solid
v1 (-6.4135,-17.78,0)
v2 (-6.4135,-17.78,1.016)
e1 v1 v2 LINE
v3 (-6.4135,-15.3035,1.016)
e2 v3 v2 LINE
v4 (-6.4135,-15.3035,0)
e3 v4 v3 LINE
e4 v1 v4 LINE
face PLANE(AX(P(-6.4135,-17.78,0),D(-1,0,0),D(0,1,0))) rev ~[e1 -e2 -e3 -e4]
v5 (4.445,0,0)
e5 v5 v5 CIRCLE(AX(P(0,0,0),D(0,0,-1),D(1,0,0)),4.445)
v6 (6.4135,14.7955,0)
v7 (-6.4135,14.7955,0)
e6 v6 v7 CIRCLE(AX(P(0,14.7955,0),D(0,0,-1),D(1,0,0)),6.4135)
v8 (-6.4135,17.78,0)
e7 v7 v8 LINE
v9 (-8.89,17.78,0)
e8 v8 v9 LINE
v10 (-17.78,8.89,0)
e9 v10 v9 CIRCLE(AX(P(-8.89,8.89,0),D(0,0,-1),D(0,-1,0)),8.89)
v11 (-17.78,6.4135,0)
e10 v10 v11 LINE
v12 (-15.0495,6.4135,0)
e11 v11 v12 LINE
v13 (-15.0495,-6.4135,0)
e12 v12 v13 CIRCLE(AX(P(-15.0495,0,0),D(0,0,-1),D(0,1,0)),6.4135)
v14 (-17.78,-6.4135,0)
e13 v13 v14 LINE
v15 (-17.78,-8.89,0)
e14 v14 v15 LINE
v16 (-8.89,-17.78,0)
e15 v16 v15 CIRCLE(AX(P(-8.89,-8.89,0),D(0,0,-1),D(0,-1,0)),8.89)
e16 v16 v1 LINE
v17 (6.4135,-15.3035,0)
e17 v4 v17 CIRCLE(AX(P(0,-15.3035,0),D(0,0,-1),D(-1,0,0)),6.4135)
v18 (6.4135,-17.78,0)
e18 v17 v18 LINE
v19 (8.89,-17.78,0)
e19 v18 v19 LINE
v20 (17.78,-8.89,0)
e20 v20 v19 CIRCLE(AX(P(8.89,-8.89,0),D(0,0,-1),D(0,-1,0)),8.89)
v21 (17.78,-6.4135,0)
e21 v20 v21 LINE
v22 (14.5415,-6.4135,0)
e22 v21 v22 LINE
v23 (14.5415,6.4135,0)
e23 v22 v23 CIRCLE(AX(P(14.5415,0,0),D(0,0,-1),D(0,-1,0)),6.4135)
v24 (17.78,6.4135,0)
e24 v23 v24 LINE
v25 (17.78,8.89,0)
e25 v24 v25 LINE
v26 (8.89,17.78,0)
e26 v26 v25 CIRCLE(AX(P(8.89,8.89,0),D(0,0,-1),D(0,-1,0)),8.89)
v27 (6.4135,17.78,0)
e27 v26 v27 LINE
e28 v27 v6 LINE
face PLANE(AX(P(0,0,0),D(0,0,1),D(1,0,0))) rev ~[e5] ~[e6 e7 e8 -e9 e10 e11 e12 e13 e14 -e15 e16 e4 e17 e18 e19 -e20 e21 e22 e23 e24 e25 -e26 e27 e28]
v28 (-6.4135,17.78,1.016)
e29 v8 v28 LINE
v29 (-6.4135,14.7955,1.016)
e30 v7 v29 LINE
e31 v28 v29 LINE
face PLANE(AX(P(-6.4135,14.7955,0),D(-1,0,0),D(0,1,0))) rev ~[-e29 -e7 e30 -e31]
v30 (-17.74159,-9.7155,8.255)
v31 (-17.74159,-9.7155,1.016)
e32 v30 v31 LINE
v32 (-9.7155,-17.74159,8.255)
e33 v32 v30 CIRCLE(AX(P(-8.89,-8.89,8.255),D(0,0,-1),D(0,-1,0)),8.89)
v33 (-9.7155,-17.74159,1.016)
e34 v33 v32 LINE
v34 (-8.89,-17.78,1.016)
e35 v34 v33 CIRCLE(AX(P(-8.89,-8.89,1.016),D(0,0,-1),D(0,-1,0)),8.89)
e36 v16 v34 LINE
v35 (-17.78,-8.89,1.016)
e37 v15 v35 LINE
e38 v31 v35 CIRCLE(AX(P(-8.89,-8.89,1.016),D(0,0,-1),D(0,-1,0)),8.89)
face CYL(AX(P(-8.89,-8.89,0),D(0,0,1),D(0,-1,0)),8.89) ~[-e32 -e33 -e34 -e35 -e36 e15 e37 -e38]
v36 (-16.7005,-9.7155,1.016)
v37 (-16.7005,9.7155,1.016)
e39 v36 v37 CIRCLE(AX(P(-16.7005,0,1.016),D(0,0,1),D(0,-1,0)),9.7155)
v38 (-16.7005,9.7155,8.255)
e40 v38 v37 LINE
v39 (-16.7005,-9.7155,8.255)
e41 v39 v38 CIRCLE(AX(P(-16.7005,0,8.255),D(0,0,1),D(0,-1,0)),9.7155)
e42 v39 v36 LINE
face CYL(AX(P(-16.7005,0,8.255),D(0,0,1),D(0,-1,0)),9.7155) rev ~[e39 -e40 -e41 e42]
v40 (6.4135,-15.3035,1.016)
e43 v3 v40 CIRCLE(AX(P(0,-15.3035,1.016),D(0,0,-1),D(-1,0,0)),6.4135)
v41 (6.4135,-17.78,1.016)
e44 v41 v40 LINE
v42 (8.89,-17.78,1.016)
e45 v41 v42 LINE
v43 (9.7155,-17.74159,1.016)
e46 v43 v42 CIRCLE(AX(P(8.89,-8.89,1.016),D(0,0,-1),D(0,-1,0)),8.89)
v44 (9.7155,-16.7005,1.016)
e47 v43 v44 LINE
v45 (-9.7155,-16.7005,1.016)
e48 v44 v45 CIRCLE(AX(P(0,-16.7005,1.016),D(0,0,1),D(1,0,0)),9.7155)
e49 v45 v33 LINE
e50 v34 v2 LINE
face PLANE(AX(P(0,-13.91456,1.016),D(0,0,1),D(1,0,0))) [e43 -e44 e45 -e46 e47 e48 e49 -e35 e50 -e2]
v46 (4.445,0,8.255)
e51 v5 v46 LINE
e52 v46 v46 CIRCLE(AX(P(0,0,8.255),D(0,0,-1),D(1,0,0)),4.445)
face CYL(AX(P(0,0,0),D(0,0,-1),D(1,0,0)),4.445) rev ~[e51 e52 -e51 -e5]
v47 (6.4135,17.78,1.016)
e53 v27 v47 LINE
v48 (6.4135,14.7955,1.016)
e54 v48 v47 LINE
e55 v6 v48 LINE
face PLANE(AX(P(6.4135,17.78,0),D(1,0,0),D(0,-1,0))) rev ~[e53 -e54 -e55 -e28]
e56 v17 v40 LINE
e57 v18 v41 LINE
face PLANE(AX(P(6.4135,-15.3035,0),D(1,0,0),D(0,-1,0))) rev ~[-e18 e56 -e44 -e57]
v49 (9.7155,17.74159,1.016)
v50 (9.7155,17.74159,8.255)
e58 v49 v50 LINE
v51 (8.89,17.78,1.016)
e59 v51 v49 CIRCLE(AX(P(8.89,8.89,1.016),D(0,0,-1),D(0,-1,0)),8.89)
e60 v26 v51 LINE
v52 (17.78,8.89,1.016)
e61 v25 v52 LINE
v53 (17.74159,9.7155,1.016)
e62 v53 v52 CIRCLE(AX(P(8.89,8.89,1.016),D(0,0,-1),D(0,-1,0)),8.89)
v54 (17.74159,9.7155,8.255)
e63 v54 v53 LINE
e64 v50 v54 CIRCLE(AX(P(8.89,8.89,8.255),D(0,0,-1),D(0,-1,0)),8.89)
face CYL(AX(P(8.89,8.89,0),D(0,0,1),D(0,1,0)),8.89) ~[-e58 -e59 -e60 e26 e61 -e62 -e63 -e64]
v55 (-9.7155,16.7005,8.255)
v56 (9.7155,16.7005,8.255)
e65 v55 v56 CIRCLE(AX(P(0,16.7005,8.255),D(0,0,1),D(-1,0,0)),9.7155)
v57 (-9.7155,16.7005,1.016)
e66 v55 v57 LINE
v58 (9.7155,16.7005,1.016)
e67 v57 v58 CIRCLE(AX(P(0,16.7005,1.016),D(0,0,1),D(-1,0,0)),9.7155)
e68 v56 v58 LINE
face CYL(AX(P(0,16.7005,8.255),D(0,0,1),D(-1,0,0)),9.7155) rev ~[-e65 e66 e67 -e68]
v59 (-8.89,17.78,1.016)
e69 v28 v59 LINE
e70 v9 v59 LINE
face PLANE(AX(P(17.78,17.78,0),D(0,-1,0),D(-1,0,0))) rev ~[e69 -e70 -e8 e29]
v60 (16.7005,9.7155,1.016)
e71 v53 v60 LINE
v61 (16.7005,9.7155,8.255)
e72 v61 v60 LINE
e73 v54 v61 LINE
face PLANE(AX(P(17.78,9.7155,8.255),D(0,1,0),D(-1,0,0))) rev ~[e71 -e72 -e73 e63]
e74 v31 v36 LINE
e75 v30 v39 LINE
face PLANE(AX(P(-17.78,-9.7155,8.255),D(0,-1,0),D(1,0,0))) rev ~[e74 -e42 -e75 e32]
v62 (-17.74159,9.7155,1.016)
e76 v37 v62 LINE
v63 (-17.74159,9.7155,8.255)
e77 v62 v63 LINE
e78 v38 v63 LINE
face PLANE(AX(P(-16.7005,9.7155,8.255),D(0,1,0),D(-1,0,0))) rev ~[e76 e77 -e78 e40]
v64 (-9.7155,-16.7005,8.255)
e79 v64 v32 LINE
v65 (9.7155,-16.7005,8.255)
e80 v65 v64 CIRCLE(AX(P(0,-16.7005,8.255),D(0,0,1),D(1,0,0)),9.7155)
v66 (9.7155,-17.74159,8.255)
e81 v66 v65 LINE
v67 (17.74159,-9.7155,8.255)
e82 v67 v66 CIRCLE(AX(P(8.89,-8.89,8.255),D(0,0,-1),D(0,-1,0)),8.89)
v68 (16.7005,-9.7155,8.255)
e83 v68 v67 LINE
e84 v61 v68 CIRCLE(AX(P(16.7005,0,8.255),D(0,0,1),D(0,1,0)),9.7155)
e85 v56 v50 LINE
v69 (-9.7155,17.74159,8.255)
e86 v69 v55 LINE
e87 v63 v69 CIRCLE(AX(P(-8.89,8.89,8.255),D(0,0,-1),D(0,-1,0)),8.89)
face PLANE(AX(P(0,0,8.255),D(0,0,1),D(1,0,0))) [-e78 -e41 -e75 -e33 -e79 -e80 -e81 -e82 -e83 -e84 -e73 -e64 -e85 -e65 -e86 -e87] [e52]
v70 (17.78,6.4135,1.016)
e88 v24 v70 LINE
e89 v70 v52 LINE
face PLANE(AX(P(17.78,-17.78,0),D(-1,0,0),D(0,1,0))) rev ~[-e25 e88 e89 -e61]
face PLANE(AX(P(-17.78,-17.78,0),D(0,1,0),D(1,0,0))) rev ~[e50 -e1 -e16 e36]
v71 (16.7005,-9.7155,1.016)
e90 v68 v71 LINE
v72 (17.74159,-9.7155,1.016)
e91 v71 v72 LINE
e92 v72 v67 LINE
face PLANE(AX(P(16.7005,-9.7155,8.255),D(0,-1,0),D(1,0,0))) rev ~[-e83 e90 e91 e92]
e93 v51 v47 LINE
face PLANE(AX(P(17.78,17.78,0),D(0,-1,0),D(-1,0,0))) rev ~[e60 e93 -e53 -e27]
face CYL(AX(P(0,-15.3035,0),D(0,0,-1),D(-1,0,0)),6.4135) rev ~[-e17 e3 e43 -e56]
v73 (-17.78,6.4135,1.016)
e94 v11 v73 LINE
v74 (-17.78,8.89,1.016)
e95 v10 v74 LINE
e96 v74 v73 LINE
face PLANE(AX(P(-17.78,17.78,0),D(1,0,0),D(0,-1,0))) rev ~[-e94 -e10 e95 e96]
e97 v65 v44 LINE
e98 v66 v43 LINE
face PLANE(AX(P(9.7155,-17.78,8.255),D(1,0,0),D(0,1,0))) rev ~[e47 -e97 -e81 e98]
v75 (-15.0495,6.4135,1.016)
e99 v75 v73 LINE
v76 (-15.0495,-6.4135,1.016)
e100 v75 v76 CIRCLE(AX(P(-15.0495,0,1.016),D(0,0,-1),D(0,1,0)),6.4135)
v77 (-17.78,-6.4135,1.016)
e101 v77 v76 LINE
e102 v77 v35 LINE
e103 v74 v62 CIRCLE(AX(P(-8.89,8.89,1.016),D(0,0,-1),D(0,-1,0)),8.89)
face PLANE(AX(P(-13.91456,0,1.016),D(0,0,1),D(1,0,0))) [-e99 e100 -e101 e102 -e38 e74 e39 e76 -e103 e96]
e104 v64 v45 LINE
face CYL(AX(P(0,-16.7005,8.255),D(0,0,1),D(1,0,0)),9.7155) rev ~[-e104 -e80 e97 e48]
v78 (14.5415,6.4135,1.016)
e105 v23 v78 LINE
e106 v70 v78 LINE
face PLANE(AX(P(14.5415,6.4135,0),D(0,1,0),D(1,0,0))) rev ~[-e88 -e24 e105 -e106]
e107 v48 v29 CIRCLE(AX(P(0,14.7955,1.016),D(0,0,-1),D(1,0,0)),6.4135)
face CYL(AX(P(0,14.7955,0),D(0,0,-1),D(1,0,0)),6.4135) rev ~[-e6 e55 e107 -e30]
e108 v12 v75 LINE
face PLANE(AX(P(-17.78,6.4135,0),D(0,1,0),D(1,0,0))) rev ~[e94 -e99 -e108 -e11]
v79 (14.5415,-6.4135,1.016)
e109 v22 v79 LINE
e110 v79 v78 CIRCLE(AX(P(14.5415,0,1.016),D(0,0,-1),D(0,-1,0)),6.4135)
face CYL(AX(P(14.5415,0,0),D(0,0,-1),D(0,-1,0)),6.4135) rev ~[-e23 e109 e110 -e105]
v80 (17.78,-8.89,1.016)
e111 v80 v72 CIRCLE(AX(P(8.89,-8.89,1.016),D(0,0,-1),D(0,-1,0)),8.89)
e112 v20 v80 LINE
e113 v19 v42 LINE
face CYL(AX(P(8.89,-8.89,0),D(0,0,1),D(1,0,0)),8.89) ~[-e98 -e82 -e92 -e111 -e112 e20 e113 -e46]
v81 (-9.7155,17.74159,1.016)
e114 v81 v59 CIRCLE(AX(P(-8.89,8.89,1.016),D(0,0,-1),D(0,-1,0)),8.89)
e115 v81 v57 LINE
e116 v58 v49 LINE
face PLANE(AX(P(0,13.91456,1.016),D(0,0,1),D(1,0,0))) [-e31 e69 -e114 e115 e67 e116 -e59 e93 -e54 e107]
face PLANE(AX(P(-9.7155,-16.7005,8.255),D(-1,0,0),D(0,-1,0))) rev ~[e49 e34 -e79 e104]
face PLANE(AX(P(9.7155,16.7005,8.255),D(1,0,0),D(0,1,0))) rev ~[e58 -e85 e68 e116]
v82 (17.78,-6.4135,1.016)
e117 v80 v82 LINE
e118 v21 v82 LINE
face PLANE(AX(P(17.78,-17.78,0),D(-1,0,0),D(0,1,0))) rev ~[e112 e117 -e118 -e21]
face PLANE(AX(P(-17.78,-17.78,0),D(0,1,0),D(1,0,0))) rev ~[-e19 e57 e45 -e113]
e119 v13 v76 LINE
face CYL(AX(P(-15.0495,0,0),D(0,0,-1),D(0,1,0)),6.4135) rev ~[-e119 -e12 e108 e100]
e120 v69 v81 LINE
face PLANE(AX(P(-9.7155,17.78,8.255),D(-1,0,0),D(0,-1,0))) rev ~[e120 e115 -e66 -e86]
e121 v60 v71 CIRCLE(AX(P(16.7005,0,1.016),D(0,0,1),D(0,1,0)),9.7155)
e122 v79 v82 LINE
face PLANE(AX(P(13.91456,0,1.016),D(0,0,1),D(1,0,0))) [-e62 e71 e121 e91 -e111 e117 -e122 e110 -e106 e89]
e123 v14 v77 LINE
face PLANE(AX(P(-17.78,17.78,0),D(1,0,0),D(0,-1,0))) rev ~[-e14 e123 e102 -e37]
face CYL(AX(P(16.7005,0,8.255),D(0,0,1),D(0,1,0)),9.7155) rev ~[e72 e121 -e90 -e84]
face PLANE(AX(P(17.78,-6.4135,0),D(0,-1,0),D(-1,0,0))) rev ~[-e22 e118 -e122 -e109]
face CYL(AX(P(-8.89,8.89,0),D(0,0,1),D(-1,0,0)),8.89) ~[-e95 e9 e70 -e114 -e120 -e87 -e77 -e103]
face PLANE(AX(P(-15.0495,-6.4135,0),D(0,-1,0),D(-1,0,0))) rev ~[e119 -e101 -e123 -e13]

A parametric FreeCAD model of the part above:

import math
import FreeCAD as App
import Part
import Sketcher
Q = App.Units.Quantity


def edges_at(feature, points):
    """Names of the edges that pass closest to the given points."""
    edges = feature.Shape.Edges
    near = lambda p: min(range(len(edges)), key=lambda i: edges[i].distToShape(Part.Vertex(*p))[0])
    return sorted({f"Edge{near(p) + 1}" for p in points})


def add_polygon(sketch, points):
    """Adds a closed chain of lines whose ends are joined by coincident constraints."""
    first, n = sketch.GeometryCount, len(points)
    for a, b in zip(points, points[1:] + points[:1]):
        sketch.addGeometry(Part.LineSegment(App.Vector(*a, 0), App.Vector(*b, 0)), False)
    for i in range(n):
        sketch.addConstraint(Sketcher.Constraint("Coincident", first + i, 2, first + (i + 1) % n, 1))

doc = App.newDocument("Part")
body = doc.addObject("PartDesign::Body", "Body")

# Sketch on XY plane
sketch1 = body.newObject("Sketcher::SketchObject", "Sketch")
sketch1.AttachmentSupport = (doc.getObject("XY_Plane"), [""])
sketch1.MapMode = "FlatFace"
add_polygon(sketch1, [(18, -18), (18, 18), (-18, 18), (-18, -18)])  # lines 0-3
sketch1.addConstraint(Sketcher.Constraint("Vertical", 0))
sketch1.addConstraint(Sketcher.Constraint("Horizontal", 1))
sketch1.addConstraint(Sketcher.Constraint("Vertical", 2))
sketch1.addConstraint(Sketcher.Constraint("Horizontal", 3))
sketch1.addConstraint(Sketcher.Constraint("Symmetric", 0, 2, 2, 2, -1, 1))
sketch1.addConstraint(Sketcher.Constraint("Equal", 3, 0))
sketch1.addConstraint(Sketcher.Constraint("DistanceX", 1, 2, 1, 1, Q("1.4 in")))
pad1 = body.newObject("PartDesign::Pad", "Pad")
pad1.Profile = sketch1
pad1.Length = Q("0.325 in")

# Sketch on XY plane
sketch2 = body.newObject("Sketcher::SketchObject", "Sketch001")
sketch2.AttachmentSupport = (doc.getObject("XY_Plane"), [""])
sketch2.MapMode = "FlatFace"
sketch2.AttachmentOffset = App.Placement(App.Vector(0, 0, 0.325 * 25.4), App.Rotation())
sketch2.addGeometry(Part.LineSegment(App.Vector(-9.7, 17.8, 0), App.Vector(-9.7, 16.7, 0)), False)
sketch2.addGeometry(Part.ArcOfCircle(Part.Circle(App.Vector(0, 16.7, 0), App.Vector(0, 0, 1), 9.7), math.radians(180), math.radians(360)), False)
sketch2.addGeometry(Part.LineSegment(App.Vector(9.7, 16.7, 0), App.Vector(9.7, 17.8, 0)), False)
sketch2.addGeometry(Part.LineSegment(App.Vector(9.7, 17.8, 0), App.Vector(-9.7, 17.8, 0)), False)
sketch2.addGeometry(Part.LineSegment(App.Vector(17.8, 9.7, 0), App.Vector(16.7, 9.7, 0)), False)
sketch2.addGeometry(Part.ArcOfCircle(Part.Circle(App.Vector(16.7, 0, 0), App.Vector(0, 0, 1), 9.7), math.radians(90), math.radians(270)), False)
sketch2.addGeometry(Part.LineSegment(App.Vector(16.7, -9.7, 0), App.Vector(17.8, -9.7, 0)), False)
sketch2.addGeometry(Part.LineSegment(App.Vector(17.8, -9.7, 0), App.Vector(17.8, 9.7, 0)), False)
sketch2.addGeometry(Part.LineSegment(App.Vector(-17.8, -9.7, 0), App.Vector(-16.7, -9.7, 0)), False)
sketch2.addGeometry(Part.ArcOfCircle(Part.Circle(App.Vector(-16.7, 0, 0), App.Vector(0, 0, 1), 9.7), math.radians(-90), math.radians(90)), False)
sketch2.addGeometry(Part.LineSegment(App.Vector(-16.7, 9.7, 0), App.Vector(-17.8, 9.7, 0)), False)
sketch2.addGeometry(Part.LineSegment(App.Vector(-17.8, 9.7, 0), App.Vector(-17.8, -9.7, 0)), False)
sketch2.addGeometry(Part.LineSegment(App.Vector(9.7, -17.8, 0), App.Vector(9.7, -16.7, 0)), False)
sketch2.addGeometry(Part.ArcOfCircle(Part.Circle(App.Vector(0, -16.7, 0), App.Vector(0, 0, 1), 9.7), math.radians(0), math.radians(180)), False)
sketch2.addGeometry(Part.LineSegment(App.Vector(-9.7, -16.7, 0), App.Vector(-9.7, -17.8, 0)), False)
sketch2.addGeometry(Part.LineSegment(App.Vector(-9.7, -17.8, 0), App.Vector(9.7, -17.8, 0)), False)
sketch2.addConstraint(Sketcher.Constraint("Tangent", 0, 2, 1, 1))
sketch2.addConstraint(Sketcher.Constraint("Tangent", 1, 2, 2, 1))
sketch2.addConstraint(Sketcher.Constraint("Coincident", 2, 2, 3, 1))
sketch2.addConstraint(Sketcher.Constraint("Coincident", 3, 2, 0, 1))
sketch2.addConstraint(Sketcher.Constraint("Tangent", 4, 2, 5, 1))
sketch2.addConstraint(Sketcher.Constraint("Tangent", 5, 2, 6, 1))
sketch2.addConstraint(Sketcher.Constraint("Coincident", 6, 2, 7, 1))
sketch2.addConstraint(Sketcher.Constraint("Coincident", 7, 2, 4, 1))
sketch2.addConstraint(Sketcher.Constraint("Tangent", 8, 2, 9, 1))
sketch2.addConstraint(Sketcher.Constraint("Tangent", 9, 2, 10, 1))
sketch2.addConstraint(Sketcher.Constraint("Coincident", 10, 2, 11, 1))
sketch2.addConstraint(Sketcher.Constraint("Coincident", 11, 2, 8, 1))
sketch2.addConstraint(Sketcher.Constraint("Tangent", 12, 2, 13, 1))
sketch2.addConstraint(Sketcher.Constraint("Tangent", 13, 2, 14, 1))
sketch2.addConstraint(Sketcher.Constraint("Coincident", 14, 2, 15, 1))
sketch2.addConstraint(Sketcher.Constraint("Coincident", 15, 2, 12, 1))
sketch2.addConstraint(Sketcher.Constraint("Vertical", 0))
sketch2.addConstraint(Sketcher.Constraint("Vertical", 2))
sketch2.addConstraint(Sketcher.Constraint("Horizontal", 3))
sketch2.addConstraint(Sketcher.Constraint("Horizontal", 4))
sketch2.addConstraint(Sketcher.Constraint("Horizontal", 6))
sketch2.addConstraint(Sketcher.Constraint("Vertical", 7))
sketch2.addConstraint(Sketcher.Constraint("Horizontal", 8))
sketch2.addConstraint(Sketcher.Constraint("Horizontal", 10))
sketch2.addConstraint(Sketcher.Constraint("Vertical", 11))
sketch2.addConstraint(Sketcher.Constraint("Vertical", 12))
sketch2.addConstraint(Sketcher.Constraint("Vertical", 14))
sketch2.addConstraint(Sketcher.Constraint("Horizontal", 15))
sketch2.addConstraint(Sketcher.Constraint("Equal", 1, 5))
sketch2.addConstraint(Sketcher.Constraint("Equal", 5, 9))
sketch2.addConstraint(Sketcher.Constraint("Equal", 9, 13))
sketch2.addConstraint(Sketcher.Constraint("Symmetric", 5, 3, 9, 3, -1, 1))
sketch2.addConstraint(Sketcher.Constraint("Symmetric", 1, 3, 13, 3, -1, 1))
sketch2.addConstraint(Sketcher.Constraint("Symmetric", 7, 2, 10, 2, -2))
sketch2.addConstraint(Sketcher.Constraint("Symmetric", 3, 2, 14, 2, -1))
sketch2.addConstraint(Sketcher.Constraint("Equal", 10, 0))
sketch2.addConstraint(Sketcher.Constraint("DistanceY", -1, 1, 2, 2, Q("0.7 in")))
sketch2.addConstraint(Sketcher.Constraint("DistanceX", -1, 1, 6, 2, Q("0.7 in")))
sketch2.addConstraint(Sketcher.Constraint("Radius", 1, Q("0.3825 in")))
sketch2.addConstraint(Sketcher.Constraint("DistanceX", 0, 2, 5, 3, Q("1.04 in")))
pocket1 = body.newObject("PartDesign::Pocket", "Pocket")
pocket1.Profile = sketch2
pocket1.Length = Q("0.285 in")

# Sketch on XY plane
sketch3 = body.newObject("Sketcher::SketchObject", "Sketch002")
sketch3.AttachmentSupport = (doc.getObject("XY_Plane"), [""])
sketch3.MapMode = "FlatFace"
sketch3.addGeometry(Part.LineSegment(App.Vector(-6.4, -17.8, 0), App.Vector(-6.4, -15.3, 0)), False)
sketch3.addGeometry(Part.ArcOfCircle(Part.Circle(App.Vector(0, -15.3, 0), App.Vector(0, 0, 1), 6.4), math.radians(0), math.radians(180)), False)
sketch3.addGeometry(Part.LineSegment(App.Vector(6.4, -15.3, 0), App.Vector(6.4, -17.8, 0)), False)
sketch3.addGeometry(Part.LineSegment(App.Vector(6.4, -17.8, 0), App.Vector(-6.4, -17.8, 0)), False)
sketch3.addGeometry(Part.LineSegment(App.Vector(17.8, -6.4, 0), App.Vector(14.5, -6.4, 0)), False)
sketch3.addGeometry(Part.ArcOfCircle(Part.Circle(App.Vector(14.5, 0, 0), App.Vector(0, 0, 1), 6.4), math.radians(90), math.radians(270)), False)
sketch3.addGeometry(Part.LineSegment(App.Vector(14.5, 6.4, 0), App.Vector(17.8, 6.4, 0)), False)
sketch3.addGeometry(Part.LineSegment(App.Vector(17.8, 6.4, 0), App.Vector(17.8, -6.4, 0)), False)
sketch3.addGeometry(Part.LineSegment(App.Vector(-17.8, 6.4, 0), App.Vector(-15, 6.4, 0)), False)
sketch3.addGeometry(Part.ArcOfCircle(Part.Circle(App.Vector(-15, 0, 0), App.Vector(0, 0, 1), 6.4), math.radians(-90), math.radians(90)), False)
sketch3.addGeometry(Part.LineSegment(App.Vector(-15, -6.4, 0), App.Vector(-17.8, -6.4, 0)), False)
sketch3.addGeometry(Part.LineSegment(App.Vector(-17.8, -6.4, 0), App.Vector(-17.8, 6.4, 0)), False)
sketch3.addGeometry(Part.LineSegment(App.Vector(6.4, 17.8, 0), App.Vector(6.4, 14.8, 0)), False)
sketch3.addGeometry(Part.ArcOfCircle(Part.Circle(App.Vector(0, 14.8, 0), App.Vector(0, 0, 1), 6.4), math.radians(180), math.radians(360)), False)
sketch3.addGeometry(Part.LineSegment(App.Vector(-6.4, 14.8, 0), App.Vector(-6.4, 17.8, 0)), False)
sketch3.addGeometry(Part.LineSegment(App.Vector(-6.4, 17.8, 0), App.Vector(6.4, 17.8, 0)), False)
sketch3.addConstraint(Sketcher.Constraint("Tangent", 0, 2, 1, 2))
sketch3.addConstraint(Sketcher.Constraint("Tangent", 1, 1, 2, 1))
sketch3.addConstraint(Sketcher.Constraint("Coincident", 2, 2, 3, 1))
sketch3.addConstraint(Sketcher.Constraint("Coincident", 3, 2, 0, 1))
sketch3.addConstraint(Sketcher.Constraint("Tangent", 4, 2, 5, 2))
sketch3.addConstraint(Sketcher.Constraint("Tangent", 5, 1, 6, 1))
sketch3.addConstraint(Sketcher.Constraint("Coincident", 6, 2, 7, 1))
sketch3.addConstraint(Sketcher.Constraint("Coincident", 7, 2, 4, 1))
sketch3.addConstraint(Sketcher.Constraint("Tangent", 8, 2, 9, 2))
sketch3.addConstraint(Sketcher.Constraint("Tangent", 9, 1, 10, 1))
sketch3.addConstraint(Sketcher.Constraint("Coincident", 10, 2, 11, 1))
sketch3.addConstraint(Sketcher.Constraint("Coincident", 11, 2, 8, 1))
sketch3.addConstraint(Sketcher.Constraint("Tangent", 12, 2, 13, 2))
sketch3.addConstraint(Sketcher.Constraint("Tangent", 13, 1, 14, 1))
sketch3.addConstraint(Sketcher.Constraint("Coincident", 14, 2, 15, 1))
sketch3.addConstraint(Sketcher.Constraint("Coincident", 15, 2, 12, 1))
sketch3.addConstraint(Sketcher.Constraint("Vertical", 0))
sketch3.addConstraint(Sketcher.Constraint("Vertical", 2))
sketch3.addConstraint(Sketcher.Constraint("Horizontal", 3))
sketch3.addConstraint(Sketcher.Constraint("Horizontal", 4))
sketch3.addConstraint(Sketcher.Constraint("Horizontal", 6))
sketch3.addConstraint(Sketcher.Constraint("Vertical", 7))
sketch3.addConstraint(Sketcher.Constraint("Horizontal", 8))
sketch3.addConstraint(Sketcher.Constraint("Horizontal", 10))
sketch3.addConstraint(Sketcher.Constraint("Vertical", 11))
sketch3.addConstraint(Sketcher.Constraint("Vertical", 12))
sketch3.addConstraint(Sketcher.Constraint("Vertical", 14))
sketch3.addConstraint(Sketcher.Constraint("Horizontal", 15))
sketch3.addConstraint(Sketcher.Constraint("Equal", 1, 5))
sketch3.addConstraint(Sketcher.Constraint("Equal", 5, 9))
sketch3.addConstraint(Sketcher.Constraint("Equal", 9, 13))
sketch3.addConstraint(Sketcher.Constraint("Symmetric", 6, 2, 10, 2, -1, 1))
sketch3.addConstraint(Sketcher.Constraint("Symmetric", 2, 2, 14, 2, -1, 1))
sketch3.addConstraint(Sketcher.Constraint("PointOnObject", 1, 3, -2))
sketch3.addConstraint(Sketcher.Constraint("PointOnObject", 5, 3, -1))
sketch3.addConstraint(Sketcher.Constraint("DistanceY", 2, 2, -1, 1, Q("0.7 in")))
sketch3.addConstraint(Sketcher.Constraint("DistanceX", -1, 1, 6, 2, Q("0.7 in")))
sketch3.addConstraint(Sketcher.Constraint("Radius", 1, Q("0.2525 in")))
sketch3.addConstraint(Sketcher.Constraint("DistanceX", 9, 3, 0, 2, Q("0.34 in")))
sketch3.addConstraint(Sketcher.Constraint("DistanceX", 1, 1, 5, 3, Q("0.32 in")))
sketch3.addConstraint(Sketcher.Constraint("DistanceY", 1, 1, 4, 2, Q("0.35 in")))
sketch3.addConstraint(Sketcher.Constraint("DistanceY", 5, 1, 13, 3, Q("0.33 in")))
pocket2 = body.newObject("PartDesign::Pocket", "Pocket001")
pocket2.Profile = sketch3
pocket2.Length = Q("1 in")
pocket2.Reversed = True
doc.recompute()

fillet = body.newObject("PartDesign::Fillet", "Fillet")
fillet.Base = (pocket2, edges_at(pocket2, [
    (-17.78, 17.78, 4.128),
    (-17.78, -17.78, 4.128),
    (17.78, -17.78, 4.128),
    (17.78, 17.78, 4.128),
]))
fillet.Radius = Q("0.35 in")

# Sketch on XY plane
sketch4 = body.newObject("Sketcher::SketchObject", "Sketch003")
sketch4.AttachmentSupport = (doc.getObject("XY_Plane"), [""])
sketch4.MapMode = "FlatFace"
sketch4.addGeometry(Part.Circle(App.Vector(0, 0, 0), App.Vector(0, 0, 1), 4.4), False)
sketch4.addConstraint(Sketcher.Constraint("Coincident", 0, 3, -1, 1))
sketch4.addConstraint(Sketcher.Constraint("Diameter", 0, Q("0.35 in")))
pocket3 = body.newObject("PartDesign::Pocket", "Pocket002")
pocket3.Profile = sketch4
pocket3.Length = Q("1 in")
pocket3.Reversed = True

doc.recompute()
